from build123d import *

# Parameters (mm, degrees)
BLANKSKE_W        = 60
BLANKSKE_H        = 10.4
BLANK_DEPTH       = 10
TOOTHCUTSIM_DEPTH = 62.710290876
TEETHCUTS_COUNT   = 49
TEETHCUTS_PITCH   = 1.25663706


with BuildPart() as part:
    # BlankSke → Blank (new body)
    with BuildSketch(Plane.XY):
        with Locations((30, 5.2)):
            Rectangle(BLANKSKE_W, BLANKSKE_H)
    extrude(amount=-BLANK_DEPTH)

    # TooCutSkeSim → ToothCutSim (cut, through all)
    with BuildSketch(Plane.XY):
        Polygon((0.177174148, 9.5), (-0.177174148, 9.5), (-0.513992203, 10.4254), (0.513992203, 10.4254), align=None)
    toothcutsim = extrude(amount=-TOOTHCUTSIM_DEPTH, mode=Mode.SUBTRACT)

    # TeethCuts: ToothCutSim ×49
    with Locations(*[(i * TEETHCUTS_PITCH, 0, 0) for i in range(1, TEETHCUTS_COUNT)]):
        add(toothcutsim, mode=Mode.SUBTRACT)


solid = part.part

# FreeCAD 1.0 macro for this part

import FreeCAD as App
import Part
import Sketcher

V = App.Vector
Q = App.Units.Quantity


def add_polygon(sketch, points):
    """Adds a closed chain of lines whose ends are joined by coincident constraints."""
    first, n = sketch.GeometryCount, len(points)
    for a, b in zip(points, points[1:] + points[:1]):
        sketch.addGeometry(Part.LineSegment(App.Vector(*a, 0), App.Vector(*b, 0)), False)
    for i in range(n):
        sketch.addConstraint(Sketcher.Constraint("Coincident", first + i, 2, first + (i + 1) % n, 1))

doc = App.newDocument("Part")
body = doc.addObject("PartDesign::Body", "Body")

# Sketch on XY plane
sketch1 = body.newObject("Sketcher::SketchObject", "Sketch")
sketch1.AttachmentSupport = (doc.getObject("XY_Plane"), [""])
sketch1.MapMode = "FlatFace"
add_polygon(sketch1, [(0, 10), (0, 0), (60, 0), (60, 10)])  # lines 0-3
sketch1.addConstraint([
    Sketcher.Constraint("Vertical", 0),
    Sketcher.Constraint("Horizontal", 1),
    Sketcher.Constraint("Vertical", 2),
    Sketcher.Constraint("Horizontal", 3),
    Sketcher.Constraint("Coincident", 0, 2, -1, 1),
    Sketcher.Constraint("DistanceX", 1, 1, 1, 2, 60.0),
    Sketcher.Constraint("DistanceY", 0, 2, 0, 1, 10.4),
])
pad1 = body.newObject("PartDesign::Pad", "Pad")
pad1.Profile = sketch1
pad1.Length = 10
pad1.Reversed = True

# Sketch on XY plane
sketch2 = body.newObject("Sketcher::SketchObject", "Sketch001")
sketch2.AttachmentSupport = (doc.getObject("XY_Plane"), [""])
sketch2.MapMode = "FlatFace"
add_polygon(sketch2, [(-0.18, 9.5), (0.18, 9.5), (0.51, 10.43), (-0.51, 10.43)])  # lines 0-3
sketch2.addConstraint([
    Sketcher.Constraint("Horizontal", 0),
    Sketcher.Constraint("Horizontal", 2),
    Sketcher.Constraint("Equal", 1, 3),
    Sketcher.Constraint("Angle", 1, Q("70 deg")),
    Sketcher.Constraint("DistanceY", -1, 1, 0, 2, 9.5),
    Sketcher.Constraint("DistanceX", 0, 1, 0, 2, 0.354348),
    Sketcher.Constraint("DistanceY", -1, 1, 1, 2, 10.4254),
    Sketcher.Constraint("DistanceX", -1, 1, 0, 2, 0.177174),
])
pocket1 = body.newObject("PartDesign::Pocket", "Pocket")
pocket1.Profile = sketch2
pocket1.Type = "ThroughAll"
doc.recompute()

linearpattern = body.newObject("PartDesign::LinearPattern", "LinearPattern")
linearpattern.Originals = [pocket1]
linearpattern.Direction = (doc.getObject("X_Axis"), [""])
linearpattern.Mode = "offset"
linearpattern.Offset = 1.256637
linearpattern.Occurrences = 49
body.Tip = linearpattern

doc.recompute()
